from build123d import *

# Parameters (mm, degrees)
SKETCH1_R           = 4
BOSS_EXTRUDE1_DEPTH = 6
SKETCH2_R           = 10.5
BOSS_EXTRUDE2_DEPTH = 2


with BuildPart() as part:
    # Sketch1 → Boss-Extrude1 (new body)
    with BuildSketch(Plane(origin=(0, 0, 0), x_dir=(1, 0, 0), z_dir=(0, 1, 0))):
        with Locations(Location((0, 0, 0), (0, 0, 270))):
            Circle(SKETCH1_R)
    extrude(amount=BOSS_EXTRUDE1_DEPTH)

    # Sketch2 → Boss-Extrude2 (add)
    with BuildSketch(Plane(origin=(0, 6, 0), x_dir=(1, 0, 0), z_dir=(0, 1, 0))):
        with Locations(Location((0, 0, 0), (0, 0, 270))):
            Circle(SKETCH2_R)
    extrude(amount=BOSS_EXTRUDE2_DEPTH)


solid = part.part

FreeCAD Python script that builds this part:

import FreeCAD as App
import Part
import Sketcher
Q = App.Units.Quantity

doc = App.newDocument("Part")
body = doc.addObject("PartDesign::Body", "Body")

# Sketch on XZ plane
sketch1 = body.newObject("Sketcher::SketchObject", "Sketch")
sketch1.AttachmentSupport = (doc.getObject("XZ_Plane"), [""])
sketch1.MapMode = "FlatFace"
sketch1.addGeometry(Part.Circle(App.Vector(0, 0, 0), App.Vector(0, 0, 1), 4), False)
sketch1.addConstraint(Sketcher.Constraint("Coincident", 0, 3, -1, 1))
sketch1.addConstraint(Sketcher.Constraint("Diameter", 0, Q("8 mm")))
pad1 = body.newObject("PartDesign::Pad", "Pad")
pad1.Profile = sketch1
pad1.Length = 6
pad1.Reversed = True

# Sketch on XZ plane
sketch2 = body.newObject("Sketcher::SketchObject", "Sketch001")
sketch2.AttachmentSupport = (doc.getObject("XZ_Plane"), [""])
sketch2.MapMode = "FlatFace"
sketch2.AttachmentOffset = App.Placement(App.Vector(0, 0, -6), App.Rotation())
sketch2.addGeometry(Part.Circle(App.Vector(0, 0, 0), App.Vector(0, 0, 1), 10), False)
sketch2.addConstraint(Sketcher.Constraint("Coincident", 0, 3, -1, 1))
sketch2.addConstraint(Sketcher.Constraint("Diameter", 0, Q("21 mm")))
pad2 = body.newObject("PartDesign::Pad", "Pad001")
pad2.Profile = sketch2
pad2.Length = 2
pad2.Reversed = True

doc.recompute()
